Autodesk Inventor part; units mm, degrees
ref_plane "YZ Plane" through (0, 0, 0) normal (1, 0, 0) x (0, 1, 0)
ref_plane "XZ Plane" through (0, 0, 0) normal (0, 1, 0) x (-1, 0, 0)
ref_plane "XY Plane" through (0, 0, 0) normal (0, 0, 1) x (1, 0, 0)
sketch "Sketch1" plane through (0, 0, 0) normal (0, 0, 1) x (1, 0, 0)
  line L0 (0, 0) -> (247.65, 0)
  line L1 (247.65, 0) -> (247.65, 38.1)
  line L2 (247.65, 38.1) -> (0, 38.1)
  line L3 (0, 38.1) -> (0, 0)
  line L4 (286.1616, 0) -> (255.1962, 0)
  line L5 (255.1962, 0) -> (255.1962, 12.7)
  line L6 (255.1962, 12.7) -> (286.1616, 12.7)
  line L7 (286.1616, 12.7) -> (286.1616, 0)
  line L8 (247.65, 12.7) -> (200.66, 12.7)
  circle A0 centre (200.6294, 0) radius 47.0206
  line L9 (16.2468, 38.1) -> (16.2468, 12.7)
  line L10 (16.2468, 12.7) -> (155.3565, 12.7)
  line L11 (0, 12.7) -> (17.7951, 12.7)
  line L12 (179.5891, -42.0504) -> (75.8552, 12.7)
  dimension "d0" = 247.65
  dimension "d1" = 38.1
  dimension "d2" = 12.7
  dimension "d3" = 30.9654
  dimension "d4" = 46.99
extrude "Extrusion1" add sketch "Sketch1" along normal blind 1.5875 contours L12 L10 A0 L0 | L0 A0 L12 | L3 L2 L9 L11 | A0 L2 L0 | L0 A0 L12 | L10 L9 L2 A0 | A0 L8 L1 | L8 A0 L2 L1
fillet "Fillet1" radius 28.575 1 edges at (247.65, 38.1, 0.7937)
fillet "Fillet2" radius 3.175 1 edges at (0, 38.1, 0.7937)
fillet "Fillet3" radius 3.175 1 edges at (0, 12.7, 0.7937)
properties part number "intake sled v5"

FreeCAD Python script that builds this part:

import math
import FreeCAD as App
import Part
import Sketcher
Q = App.Units.Quantity


def edges_at(feature, points):
    """Names of the edges that pass closest to the given points."""
    edges = feature.Shape.Edges
    near = lambda p: min(range(len(edges)), key=lambda i: edges[i].distToShape(Part.Vertex(*p))[0])
    return sorted({f"Edge{near(p) + 1}" for p in points})

doc = App.newDocument("Part")
params = doc.addObject("Spreadsheet::Sheet", "Params")
for row, (alias, value) in enumerate([
    ("sketch1_height", "1.5 in"),
    ("sketch1_width", "9.75 in"),
    ("pad1_length", "0.0625 in"),
    ("fillet_radius", "1.125 in"),
    ("fillet2_radius", "0.125 in"),
    ("fillet3_radius", "0.125 in"),
], start=1):
    params.set(f"A{row}", alias)
    params.set(f"B{row}", "=" + value)
    params.setAlias(f"B{row}", alias)

body = doc.addObject("PartDesign::Body", "Body")

sketch1 = doc.addObject("Sketcher::SketchObject", "Sketch")
body.addObject(sketch1)
sketch1.AttachmentSupport = (doc.XY_Plane, [""])
sketch1.MapMode = "FlatFace"
sketch1.addGeometry([
    Part.LineSegment(App.Vector(76, 13, 0), App.Vector(180, -42, 0)),
    Part.ArcOfCircle(Part.Circle(App.Vector(201, 0, 0), App.Vector(0, 0, 1), 47), math.radians(-117), math.radians(0)),
    Part.LineSegment(App.Vector(248, 0, 0), App.Vector(248, 38, 0)),
    Part.LineSegment(App.Vector(248, 38, 0), App.Vector(0, 38, 0)),
    Part.LineSegment(App.Vector(0, 38, 0), App.Vector(0, 13, 0)),
    Part.LineSegment(App.Vector(0, 13, 0), App.Vector(76, 13, 0)),
], False)
sketch1.addConstraint([
    Sketcher.Constraint("Coincident", 0, 2, 1, 1),
    Sketcher.Constraint("Tangent", 1, 2, 2, 1),
    Sketcher.Constraint("Coincident", 2, 2, 3, 1),
    Sketcher.Constraint("Coincident", 3, 2, 4, 1),
    Sketcher.Constraint("Coincident", 4, 2, 5, 1),
    Sketcher.Constraint("Coincident", 5, 2, 0, 1),
    Sketcher.Constraint("Vertical", 2),
    Sketcher.Constraint("Horizontal", 3),
    Sketcher.Constraint("Vertical", 4),
    Sketcher.Constraint("Horizontal", 5),
    Sketcher.Constraint("PointOnObject", 1, 3, -1),
    Sketcher.Constraint("PointOnObject", 3, 2, -2),
    Sketcher.Constraint("DistanceY", 2, 1, 2, 2, Q("1.5 in")),
    Sketcher.Constraint("DistanceX", 3, 2, 3, 1, Q("9.75 in")),
    Sketcher.Constraint("DistanceY", -1, 1, 4, 2, Q("0.5 in")),
    Sketcher.Constraint("Radius", 1, Q("1.8512 in")),
    Sketcher.Constraint("DistanceX", 5, 2, 0, 2, Q("4.084 in")),
    Sketcher.Constraint("DistanceX", 5, 1, 5, 2, 75.8552),
])
sketch1.setExpression("Constraints[12]", "Params.sketch1_height")
sketch1.setExpression("Constraints[13]", "Params.sketch1_width")
pad1 = doc.addObject("PartDesign::Pad", "Pad")
body.addObject(pad1)
pad1.Profile = sketch1
pad1.setExpression("Length", "Params.pad1_length")
doc.recompute()

fillet = doc.addObject("PartDesign::Fillet", "Fillet")
body.addObject(fillet)
fillet.Base = (pad1, edges_at(pad1, [(247.65, 38.1, 0.794)]))
fillet.setExpression("Radius", "Params.fillet_radius")
doc.recompute()

fillet2 = doc.addObject("PartDesign::Fillet", "Fillet001")
body.addObject(fillet2)
fillet2.Base = (fillet, edges_at(fillet, [(0, 38.1, 0.794)]))
fillet2.setExpression("Radius", "Params.fillet2_radius")
doc.recompute()

fillet3 = doc.addObject("PartDesign::Fillet", "Fillet002")
body.addObject(fillet3)
fillet3.Base = (fillet2, edges_at(fillet2, [(0, 12.7, 0.794)]))
fillet3.setExpression("Radius", "Params.fillet3_radius")

doc.recompute()
